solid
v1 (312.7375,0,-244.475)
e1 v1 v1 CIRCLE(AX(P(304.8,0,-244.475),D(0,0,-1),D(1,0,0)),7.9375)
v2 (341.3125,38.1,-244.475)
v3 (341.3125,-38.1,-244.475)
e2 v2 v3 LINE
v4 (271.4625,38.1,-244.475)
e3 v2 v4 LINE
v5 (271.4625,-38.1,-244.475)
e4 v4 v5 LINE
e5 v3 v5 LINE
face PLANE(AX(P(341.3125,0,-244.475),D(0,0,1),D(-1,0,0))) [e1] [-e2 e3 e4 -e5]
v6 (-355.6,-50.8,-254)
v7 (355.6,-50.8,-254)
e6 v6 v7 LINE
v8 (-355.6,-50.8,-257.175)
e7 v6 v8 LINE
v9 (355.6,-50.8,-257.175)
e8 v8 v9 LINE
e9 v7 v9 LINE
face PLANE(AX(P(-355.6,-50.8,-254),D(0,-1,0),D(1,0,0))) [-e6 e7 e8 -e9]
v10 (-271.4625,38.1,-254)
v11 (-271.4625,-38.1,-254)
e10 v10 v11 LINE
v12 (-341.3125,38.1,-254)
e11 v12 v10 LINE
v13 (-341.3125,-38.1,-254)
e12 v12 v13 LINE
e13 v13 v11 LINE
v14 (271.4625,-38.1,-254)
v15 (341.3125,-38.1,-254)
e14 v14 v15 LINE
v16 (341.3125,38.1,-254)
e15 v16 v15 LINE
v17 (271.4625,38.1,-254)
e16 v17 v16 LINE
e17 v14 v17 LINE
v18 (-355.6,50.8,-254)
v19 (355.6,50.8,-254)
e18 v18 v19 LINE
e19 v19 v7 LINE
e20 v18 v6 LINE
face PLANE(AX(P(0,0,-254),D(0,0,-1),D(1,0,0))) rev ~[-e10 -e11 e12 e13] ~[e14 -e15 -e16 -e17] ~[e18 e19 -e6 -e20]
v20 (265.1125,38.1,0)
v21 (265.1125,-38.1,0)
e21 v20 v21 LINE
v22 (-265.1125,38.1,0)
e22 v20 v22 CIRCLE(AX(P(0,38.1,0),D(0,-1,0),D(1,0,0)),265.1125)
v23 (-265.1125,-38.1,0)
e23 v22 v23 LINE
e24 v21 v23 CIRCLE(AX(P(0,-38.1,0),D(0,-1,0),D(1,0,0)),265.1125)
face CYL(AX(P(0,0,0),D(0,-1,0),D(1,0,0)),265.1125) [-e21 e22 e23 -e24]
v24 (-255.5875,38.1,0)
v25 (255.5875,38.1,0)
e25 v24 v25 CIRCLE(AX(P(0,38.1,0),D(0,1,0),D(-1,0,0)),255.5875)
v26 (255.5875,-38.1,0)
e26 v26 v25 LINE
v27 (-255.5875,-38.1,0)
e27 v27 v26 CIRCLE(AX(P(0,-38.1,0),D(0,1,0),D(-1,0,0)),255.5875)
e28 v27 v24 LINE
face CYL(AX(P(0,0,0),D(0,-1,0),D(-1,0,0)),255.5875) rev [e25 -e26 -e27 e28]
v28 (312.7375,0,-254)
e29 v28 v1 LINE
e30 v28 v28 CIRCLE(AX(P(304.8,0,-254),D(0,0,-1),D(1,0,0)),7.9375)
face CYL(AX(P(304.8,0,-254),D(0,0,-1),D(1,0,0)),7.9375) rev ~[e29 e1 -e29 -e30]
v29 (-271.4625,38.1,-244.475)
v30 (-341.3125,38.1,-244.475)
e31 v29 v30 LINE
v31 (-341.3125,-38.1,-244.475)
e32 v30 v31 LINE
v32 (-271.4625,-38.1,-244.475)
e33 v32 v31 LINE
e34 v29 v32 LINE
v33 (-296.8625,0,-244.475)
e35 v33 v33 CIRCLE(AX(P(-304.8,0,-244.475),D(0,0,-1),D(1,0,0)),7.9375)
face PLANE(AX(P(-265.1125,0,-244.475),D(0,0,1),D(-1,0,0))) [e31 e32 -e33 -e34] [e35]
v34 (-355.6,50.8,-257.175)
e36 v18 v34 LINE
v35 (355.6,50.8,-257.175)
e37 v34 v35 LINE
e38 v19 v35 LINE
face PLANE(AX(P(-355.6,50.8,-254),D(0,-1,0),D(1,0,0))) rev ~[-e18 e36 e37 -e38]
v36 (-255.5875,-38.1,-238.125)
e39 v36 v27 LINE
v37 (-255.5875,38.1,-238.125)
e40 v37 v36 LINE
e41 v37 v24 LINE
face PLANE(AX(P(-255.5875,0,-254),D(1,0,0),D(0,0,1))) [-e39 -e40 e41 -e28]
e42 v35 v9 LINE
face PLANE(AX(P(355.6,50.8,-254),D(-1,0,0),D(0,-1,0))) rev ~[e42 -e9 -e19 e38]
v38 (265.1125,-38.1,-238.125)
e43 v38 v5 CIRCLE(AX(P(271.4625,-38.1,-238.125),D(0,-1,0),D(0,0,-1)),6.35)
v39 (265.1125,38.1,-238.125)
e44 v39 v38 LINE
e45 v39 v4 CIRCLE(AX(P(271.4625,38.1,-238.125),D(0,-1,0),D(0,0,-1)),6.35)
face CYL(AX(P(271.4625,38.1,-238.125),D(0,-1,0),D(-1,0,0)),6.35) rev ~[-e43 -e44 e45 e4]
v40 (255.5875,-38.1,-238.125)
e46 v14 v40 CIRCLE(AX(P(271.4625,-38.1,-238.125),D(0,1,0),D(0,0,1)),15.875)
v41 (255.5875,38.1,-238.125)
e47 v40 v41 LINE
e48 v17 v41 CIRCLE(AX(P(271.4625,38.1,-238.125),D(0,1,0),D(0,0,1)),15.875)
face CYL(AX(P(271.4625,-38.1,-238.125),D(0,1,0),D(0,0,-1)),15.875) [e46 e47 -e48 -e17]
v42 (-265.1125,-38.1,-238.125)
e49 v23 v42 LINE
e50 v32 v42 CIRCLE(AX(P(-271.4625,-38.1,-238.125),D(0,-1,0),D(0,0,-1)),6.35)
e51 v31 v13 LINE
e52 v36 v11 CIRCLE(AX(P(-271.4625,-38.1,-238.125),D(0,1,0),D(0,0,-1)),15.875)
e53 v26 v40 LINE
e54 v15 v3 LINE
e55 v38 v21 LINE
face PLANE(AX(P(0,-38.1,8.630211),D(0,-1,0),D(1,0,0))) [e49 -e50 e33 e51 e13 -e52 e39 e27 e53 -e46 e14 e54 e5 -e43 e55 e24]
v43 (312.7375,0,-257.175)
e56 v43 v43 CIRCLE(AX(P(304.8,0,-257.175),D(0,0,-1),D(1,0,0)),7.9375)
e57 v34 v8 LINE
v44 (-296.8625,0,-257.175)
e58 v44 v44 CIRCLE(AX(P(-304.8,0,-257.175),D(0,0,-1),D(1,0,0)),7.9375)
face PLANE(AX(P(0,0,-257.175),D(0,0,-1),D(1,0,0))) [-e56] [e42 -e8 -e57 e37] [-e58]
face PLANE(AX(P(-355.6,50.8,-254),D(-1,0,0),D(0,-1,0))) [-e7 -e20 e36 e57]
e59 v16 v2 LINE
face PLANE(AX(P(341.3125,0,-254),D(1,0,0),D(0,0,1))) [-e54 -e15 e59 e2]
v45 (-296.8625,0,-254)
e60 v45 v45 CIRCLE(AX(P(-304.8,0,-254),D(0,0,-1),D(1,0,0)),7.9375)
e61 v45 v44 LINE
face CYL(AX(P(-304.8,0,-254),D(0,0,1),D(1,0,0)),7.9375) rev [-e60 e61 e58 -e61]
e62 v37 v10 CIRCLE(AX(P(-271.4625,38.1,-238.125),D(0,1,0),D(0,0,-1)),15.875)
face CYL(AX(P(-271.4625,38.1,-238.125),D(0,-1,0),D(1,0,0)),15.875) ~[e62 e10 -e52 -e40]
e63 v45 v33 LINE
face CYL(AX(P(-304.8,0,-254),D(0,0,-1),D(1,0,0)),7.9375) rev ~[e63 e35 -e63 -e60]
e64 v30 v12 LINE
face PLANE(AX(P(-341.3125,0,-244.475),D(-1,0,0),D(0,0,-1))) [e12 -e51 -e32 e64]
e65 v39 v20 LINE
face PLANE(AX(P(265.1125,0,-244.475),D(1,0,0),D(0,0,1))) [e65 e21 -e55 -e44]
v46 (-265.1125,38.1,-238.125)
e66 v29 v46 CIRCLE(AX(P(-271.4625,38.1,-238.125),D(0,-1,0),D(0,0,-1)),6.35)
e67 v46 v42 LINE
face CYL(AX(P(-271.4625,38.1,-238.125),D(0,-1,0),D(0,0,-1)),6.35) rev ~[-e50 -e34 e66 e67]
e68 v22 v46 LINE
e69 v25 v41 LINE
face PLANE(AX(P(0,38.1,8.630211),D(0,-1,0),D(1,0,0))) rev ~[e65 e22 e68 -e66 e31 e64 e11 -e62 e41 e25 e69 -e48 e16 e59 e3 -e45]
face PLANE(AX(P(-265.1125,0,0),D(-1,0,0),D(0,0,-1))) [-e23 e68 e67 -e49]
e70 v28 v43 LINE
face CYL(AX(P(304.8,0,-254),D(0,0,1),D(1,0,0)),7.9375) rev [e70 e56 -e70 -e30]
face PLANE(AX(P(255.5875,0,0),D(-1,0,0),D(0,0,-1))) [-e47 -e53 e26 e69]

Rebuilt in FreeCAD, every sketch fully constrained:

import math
import FreeCAD as App
import Part
import Sketcher
Q = App.Units.Quantity


def edges_at(feature, points):
    """Names of the edges that pass closest to the given points."""
    edges = feature.Shape.Edges
    near = lambda p: min(range(len(edges)), key=lambda i: edges[i].distToShape(Part.Vertex(*p))[0])
    return sorted({f"Edge{near(p) + 1}" for p in points})

doc = App.newDocument("Part")
body = doc.addObject("PartDesign::Body", "Body")

# Sketch on XZ plane
sketch1 = body.newObject("Sketcher::SketchObject", "Sketch")
sketch1.AttachmentSupport = (doc.getObject("XZ_Plane"), [""])
sketch1.MapMode = "FlatFace"
sketch1.addGeometry(Part.LineSegment(App.Vector(256, -254, 0), App.Vector(341, -254, 0)), False)
sketch1.addGeometry(Part.LineSegment(App.Vector(341, -254, 0), App.Vector(341, -244, 0)), False)
sketch1.addGeometry(Part.LineSegment(App.Vector(341, -244, 0), App.Vector(265, -244, 0)), False)
sketch1.addGeometry(Part.LineSegment(App.Vector(265, -244, 0), App.Vector(265, 0, 0)), False)
sketch1.addGeometry(Part.ArcOfCircle(Part.Circle(App.Vector(0, 0, 0), App.Vector(0, 0, 1), 265), math.radians(0), math.radians(180)), False)
sketch1.addGeometry(Part.LineSegment(App.Vector(-265, 0, 0), App.Vector(-265, -244, 0)), False)
sketch1.addGeometry(Part.LineSegment(App.Vector(-265, -244, 0), App.Vector(-341, -244, 0)), False)
sketch1.addGeometry(Part.LineSegment(App.Vector(-341, -244, 0), App.Vector(-341, -254, 0)), False)
sketch1.addGeometry(Part.LineSegment(App.Vector(-341, -254, 0), App.Vector(-256, -254, 0)), False)
sketch1.addGeometry(Part.LineSegment(App.Vector(-256, -254, 0), App.Vector(-256, 0, 0)), False)
sketch1.addGeometry(Part.ArcOfCircle(Part.Circle(App.Vector(0, 0, 0), App.Vector(0, 0, 1), 256), math.radians(0), math.radians(180)), False)
sketch1.addGeometry(Part.LineSegment(App.Vector(256, 0, 0), App.Vector(256, -254, 0)), False)
sketch1.addConstraint(Sketcher.Constraint("Coincident", 0, 2, 1, 1))
sketch1.addConstraint(Sketcher.Constraint("Coincident", 1, 2, 2, 1))
sketch1.addConstraint(Sketcher.Constraint("Coincident", 2, 2, 3, 1))
sketch1.addConstraint(Sketcher.Constraint("Tangent", 3, 2, 4, 1))
sketch1.addConstraint(Sketcher.Constraint("Tangent", 4, 2, 5, 1))
sketch1.addConstraint(Sketcher.Constraint("Coincident", 5, 2, 6, 1))
sketch1.addConstraint(Sketcher.Constraint("Coincident", 6, 2, 7, 1))
sketch1.addConstraint(Sketcher.Constraint("Coincident", 7, 2, 8, 1))
sketch1.addConstraint(Sketcher.Constraint("Coincident", 8, 2, 9, 1))
sketch1.addConstraint(Sketcher.Constraint("Tangent", 9, 2, 10, 2))
sketch1.addConstraint(Sketcher.Constraint("Tangent", 10, 1, 11, 1))
sketch1.addConstraint(Sketcher.Constraint("Coincident", 11, 2, 0, 1))
sketch1.addConstraint(Sketcher.Constraint("Horizontal", 0))
sketch1.addConstraint(Sketcher.Constraint("Vertical", 1))
sketch1.addConstraint(Sketcher.Constraint("Horizontal", 2))
sketch1.addConstraint(Sketcher.Constraint("Vertical", 3))
sketch1.addConstraint(Sketcher.Constraint("Vertical", 5))
sketch1.addConstraint(Sketcher.Constraint("Horizontal", 6))
sketch1.addConstraint(Sketcher.Constraint("Vertical", 7))
sketch1.addConstraint(Sketcher.Constraint("Horizontal", 8))
sketch1.addConstraint(Sketcher.Constraint("Vertical", 9))
sketch1.addConstraint(Sketcher.Constraint("Vertical", 11))
sketch1.addConstraint(Sketcher.Constraint("Coincident", 4, 3, -1, 1))
sketch1.addConstraint(Sketcher.Constraint("Coincident", 10, 3, -1, 1))
sketch1.addConstraint(Sketcher.Constraint("Symmetric", 1, 2, 6, 2, -2))
sketch1.addConstraint(Sketcher.Constraint("Horizontal", 0, 2, 7, 2))
sketch1.addConstraint(Sketcher.Constraint("DistanceX", 2, 2, 2, 1, Q("3 in")))
sketch1.addConstraint(Sketcher.Constraint("DistanceY", 9, 1, 9, 2, Q("10 in")))
sketch1.addConstraint(Sketcher.Constraint("Radius", 4, Q("10.4375 in")))
sketch1.addConstraint(Sketcher.Constraint("Radius", 10, Q("10.0625 in")))
sketch1.addConstraint(Sketcher.Constraint("DistanceY", 1, 1, 1, 2, Q("0.375 in")))
pad1 = body.newObject("PartDesign::Pad", "Pad")
pad1.Profile = sketch1
pad1.Length = Q("3 in")
pad1.Midplane = True
doc.recompute()

fillet = body.newObject("PartDesign::Fillet", "Fillet")
fillet.Base = (pad1, edges_at(pad1, [(-265.113, 0, -244.475), (265.113, 0, -244.475)]))
fillet.Radius = Q("0.25 in")
doc.recompute()

fillet2 = body.newObject("PartDesign::Fillet", "Fillet001")
fillet2.Base = (fillet, edges_at(fillet, [(-255.588, 0, -254), (255.588, 0, -254)]))
fillet2.Radius = Q("0.625 in")

# Sketch on XY plane
sketch2 = body.newObject("Sketcher::SketchObject", "Sketch001")
sketch2.AttachmentSupport = (doc.getObject("XY_Plane"), [""])
sketch2.MapMode = "FlatFace"
sketch2.AttachmentOffset = App.Placement(App.Vector(0, 0, -10 * 25.4), App.Rotation())
sketch2.addGeometry(Part.Circle(App.Vector(-305, 0, 0), App.Vector(0, 0, 1), 8), False)
sketch2.addGeometry(Part.Circle(App.Vector(305, 0, 0), App.Vector(0, 0, 1), 8), False)
sketch2.addConstraint(Sketcher.Constraint("Equal", 0, 1))
sketch2.addConstraint(Sketcher.Constraint("Symmetric", 0, 3, 1, 3, -1, 1))
sketch2.addConstraint(Sketcher.Constraint("PointOnObject", 0, 3, -1))
sketch2.addConstraint(Sketcher.Constraint("Diameter", 0, Q("0.625 in")))
sketch2.addConstraint(Sketcher.Constraint("DistanceX", 0, 3, -1, 1, Q("12 in")))
pocket1 = body.newObject("PartDesign::Pocket", "Pocket")
pocket1.Profile = sketch2
pocket1.Length = Q("1 in")
pocket1.Reversed = True

# Sketch on XY plane
sketch3 = body.newObject("Sketcher::SketchObject", "Sketch002")
sketch3.AttachmentSupport = (doc.getObject("XY_Plane"), [""])
sketch3.MapMode = "FlatFace"
sketch3.AttachmentOffset = App.Placement(App.Vector(0, 0, -10 * 25.4), App.Rotation())
sketch3.addGeometry(Part.LineSegment(App.Vector(-356, -51, 0), App.Vector(-356, 51, 0)), False)
sketch3.addGeometry(Part.LineSegment(App.Vector(-356, 51, 0), App.Vector(356, 51, 0)), False)
sketch3.addGeometry(Part.LineSegment(App.Vector(356, 51, 0), App.Vector(356, -51, 0)), False)
sketch3.addGeometry(Part.LineSegment(App.Vector(356, -51, 0), App.Vector(-356, -51, 0)), False)
sketch3.addGeometry(Part.Circle(App.Vector(-305, 0, 0), App.Vector(0, 0, 1), 8), False)
sketch3.addGeometry(Part.Circle(App.Vector(305, 0, 0), App.Vector(0, 0, 1), 8), False)
sketch3.addConstraint(Sketcher.Constraint("Coincident", 0, 2, 1, 1))
sketch3.addConstraint(Sketcher.Constraint("Coincident", 1, 2, 2, 1))
sketch3.addConstraint(Sketcher.Constraint("Coincident", 2, 2, 3, 1))
sketch3.addConstraint(Sketcher.Constraint("Coincident", 3, 2, 0, 1))
sketch3.addConstraint(Sketcher.Constraint("Vertical", 0))
sketch3.addConstraint(Sketcher.Constraint("Horizontal", 1))
sketch3.addConstraint(Sketcher.Constraint("Vertical", 2))
sketch3.addConstraint(Sketcher.Constraint("Horizontal", 3))
sketch3.addConstraint(Sketcher.Constraint("Equal", 4, 5))
sketch3.addConstraint(Sketcher.Constraint("Symmetric", 4, 3, 5, 3, -1, 1))
sketch3.addConstraint(Sketcher.Constraint("Symmetric", 0, 2, 2, 2, -1, 1))
sketch3.addConstraint(Sketcher.Constraint("PointOnObject", 4, 3, -1))
sketch3.addConstraint(Sketcher.Constraint("DistanceX", 1, 1, 1, 2, Q("28 in")))
sketch3.addConstraint(Sketcher.Constraint("DistanceY", 0, 1, 0, 2, Q("4 in")))
sketch3.addConstraint(Sketcher.Constraint("Diameter", 4, Q("0.625 in")))
sketch3.addConstraint(Sketcher.Constraint("DistanceX", 4, 3, -1, 1, Q("12 in")))
pad2 = body.newObject("PartDesign::Pad", "Pad001")
pad2.Profile = sketch3
pad2.Length = Q("0.125 in")
pad2.Reversed = True

doc.recompute()
